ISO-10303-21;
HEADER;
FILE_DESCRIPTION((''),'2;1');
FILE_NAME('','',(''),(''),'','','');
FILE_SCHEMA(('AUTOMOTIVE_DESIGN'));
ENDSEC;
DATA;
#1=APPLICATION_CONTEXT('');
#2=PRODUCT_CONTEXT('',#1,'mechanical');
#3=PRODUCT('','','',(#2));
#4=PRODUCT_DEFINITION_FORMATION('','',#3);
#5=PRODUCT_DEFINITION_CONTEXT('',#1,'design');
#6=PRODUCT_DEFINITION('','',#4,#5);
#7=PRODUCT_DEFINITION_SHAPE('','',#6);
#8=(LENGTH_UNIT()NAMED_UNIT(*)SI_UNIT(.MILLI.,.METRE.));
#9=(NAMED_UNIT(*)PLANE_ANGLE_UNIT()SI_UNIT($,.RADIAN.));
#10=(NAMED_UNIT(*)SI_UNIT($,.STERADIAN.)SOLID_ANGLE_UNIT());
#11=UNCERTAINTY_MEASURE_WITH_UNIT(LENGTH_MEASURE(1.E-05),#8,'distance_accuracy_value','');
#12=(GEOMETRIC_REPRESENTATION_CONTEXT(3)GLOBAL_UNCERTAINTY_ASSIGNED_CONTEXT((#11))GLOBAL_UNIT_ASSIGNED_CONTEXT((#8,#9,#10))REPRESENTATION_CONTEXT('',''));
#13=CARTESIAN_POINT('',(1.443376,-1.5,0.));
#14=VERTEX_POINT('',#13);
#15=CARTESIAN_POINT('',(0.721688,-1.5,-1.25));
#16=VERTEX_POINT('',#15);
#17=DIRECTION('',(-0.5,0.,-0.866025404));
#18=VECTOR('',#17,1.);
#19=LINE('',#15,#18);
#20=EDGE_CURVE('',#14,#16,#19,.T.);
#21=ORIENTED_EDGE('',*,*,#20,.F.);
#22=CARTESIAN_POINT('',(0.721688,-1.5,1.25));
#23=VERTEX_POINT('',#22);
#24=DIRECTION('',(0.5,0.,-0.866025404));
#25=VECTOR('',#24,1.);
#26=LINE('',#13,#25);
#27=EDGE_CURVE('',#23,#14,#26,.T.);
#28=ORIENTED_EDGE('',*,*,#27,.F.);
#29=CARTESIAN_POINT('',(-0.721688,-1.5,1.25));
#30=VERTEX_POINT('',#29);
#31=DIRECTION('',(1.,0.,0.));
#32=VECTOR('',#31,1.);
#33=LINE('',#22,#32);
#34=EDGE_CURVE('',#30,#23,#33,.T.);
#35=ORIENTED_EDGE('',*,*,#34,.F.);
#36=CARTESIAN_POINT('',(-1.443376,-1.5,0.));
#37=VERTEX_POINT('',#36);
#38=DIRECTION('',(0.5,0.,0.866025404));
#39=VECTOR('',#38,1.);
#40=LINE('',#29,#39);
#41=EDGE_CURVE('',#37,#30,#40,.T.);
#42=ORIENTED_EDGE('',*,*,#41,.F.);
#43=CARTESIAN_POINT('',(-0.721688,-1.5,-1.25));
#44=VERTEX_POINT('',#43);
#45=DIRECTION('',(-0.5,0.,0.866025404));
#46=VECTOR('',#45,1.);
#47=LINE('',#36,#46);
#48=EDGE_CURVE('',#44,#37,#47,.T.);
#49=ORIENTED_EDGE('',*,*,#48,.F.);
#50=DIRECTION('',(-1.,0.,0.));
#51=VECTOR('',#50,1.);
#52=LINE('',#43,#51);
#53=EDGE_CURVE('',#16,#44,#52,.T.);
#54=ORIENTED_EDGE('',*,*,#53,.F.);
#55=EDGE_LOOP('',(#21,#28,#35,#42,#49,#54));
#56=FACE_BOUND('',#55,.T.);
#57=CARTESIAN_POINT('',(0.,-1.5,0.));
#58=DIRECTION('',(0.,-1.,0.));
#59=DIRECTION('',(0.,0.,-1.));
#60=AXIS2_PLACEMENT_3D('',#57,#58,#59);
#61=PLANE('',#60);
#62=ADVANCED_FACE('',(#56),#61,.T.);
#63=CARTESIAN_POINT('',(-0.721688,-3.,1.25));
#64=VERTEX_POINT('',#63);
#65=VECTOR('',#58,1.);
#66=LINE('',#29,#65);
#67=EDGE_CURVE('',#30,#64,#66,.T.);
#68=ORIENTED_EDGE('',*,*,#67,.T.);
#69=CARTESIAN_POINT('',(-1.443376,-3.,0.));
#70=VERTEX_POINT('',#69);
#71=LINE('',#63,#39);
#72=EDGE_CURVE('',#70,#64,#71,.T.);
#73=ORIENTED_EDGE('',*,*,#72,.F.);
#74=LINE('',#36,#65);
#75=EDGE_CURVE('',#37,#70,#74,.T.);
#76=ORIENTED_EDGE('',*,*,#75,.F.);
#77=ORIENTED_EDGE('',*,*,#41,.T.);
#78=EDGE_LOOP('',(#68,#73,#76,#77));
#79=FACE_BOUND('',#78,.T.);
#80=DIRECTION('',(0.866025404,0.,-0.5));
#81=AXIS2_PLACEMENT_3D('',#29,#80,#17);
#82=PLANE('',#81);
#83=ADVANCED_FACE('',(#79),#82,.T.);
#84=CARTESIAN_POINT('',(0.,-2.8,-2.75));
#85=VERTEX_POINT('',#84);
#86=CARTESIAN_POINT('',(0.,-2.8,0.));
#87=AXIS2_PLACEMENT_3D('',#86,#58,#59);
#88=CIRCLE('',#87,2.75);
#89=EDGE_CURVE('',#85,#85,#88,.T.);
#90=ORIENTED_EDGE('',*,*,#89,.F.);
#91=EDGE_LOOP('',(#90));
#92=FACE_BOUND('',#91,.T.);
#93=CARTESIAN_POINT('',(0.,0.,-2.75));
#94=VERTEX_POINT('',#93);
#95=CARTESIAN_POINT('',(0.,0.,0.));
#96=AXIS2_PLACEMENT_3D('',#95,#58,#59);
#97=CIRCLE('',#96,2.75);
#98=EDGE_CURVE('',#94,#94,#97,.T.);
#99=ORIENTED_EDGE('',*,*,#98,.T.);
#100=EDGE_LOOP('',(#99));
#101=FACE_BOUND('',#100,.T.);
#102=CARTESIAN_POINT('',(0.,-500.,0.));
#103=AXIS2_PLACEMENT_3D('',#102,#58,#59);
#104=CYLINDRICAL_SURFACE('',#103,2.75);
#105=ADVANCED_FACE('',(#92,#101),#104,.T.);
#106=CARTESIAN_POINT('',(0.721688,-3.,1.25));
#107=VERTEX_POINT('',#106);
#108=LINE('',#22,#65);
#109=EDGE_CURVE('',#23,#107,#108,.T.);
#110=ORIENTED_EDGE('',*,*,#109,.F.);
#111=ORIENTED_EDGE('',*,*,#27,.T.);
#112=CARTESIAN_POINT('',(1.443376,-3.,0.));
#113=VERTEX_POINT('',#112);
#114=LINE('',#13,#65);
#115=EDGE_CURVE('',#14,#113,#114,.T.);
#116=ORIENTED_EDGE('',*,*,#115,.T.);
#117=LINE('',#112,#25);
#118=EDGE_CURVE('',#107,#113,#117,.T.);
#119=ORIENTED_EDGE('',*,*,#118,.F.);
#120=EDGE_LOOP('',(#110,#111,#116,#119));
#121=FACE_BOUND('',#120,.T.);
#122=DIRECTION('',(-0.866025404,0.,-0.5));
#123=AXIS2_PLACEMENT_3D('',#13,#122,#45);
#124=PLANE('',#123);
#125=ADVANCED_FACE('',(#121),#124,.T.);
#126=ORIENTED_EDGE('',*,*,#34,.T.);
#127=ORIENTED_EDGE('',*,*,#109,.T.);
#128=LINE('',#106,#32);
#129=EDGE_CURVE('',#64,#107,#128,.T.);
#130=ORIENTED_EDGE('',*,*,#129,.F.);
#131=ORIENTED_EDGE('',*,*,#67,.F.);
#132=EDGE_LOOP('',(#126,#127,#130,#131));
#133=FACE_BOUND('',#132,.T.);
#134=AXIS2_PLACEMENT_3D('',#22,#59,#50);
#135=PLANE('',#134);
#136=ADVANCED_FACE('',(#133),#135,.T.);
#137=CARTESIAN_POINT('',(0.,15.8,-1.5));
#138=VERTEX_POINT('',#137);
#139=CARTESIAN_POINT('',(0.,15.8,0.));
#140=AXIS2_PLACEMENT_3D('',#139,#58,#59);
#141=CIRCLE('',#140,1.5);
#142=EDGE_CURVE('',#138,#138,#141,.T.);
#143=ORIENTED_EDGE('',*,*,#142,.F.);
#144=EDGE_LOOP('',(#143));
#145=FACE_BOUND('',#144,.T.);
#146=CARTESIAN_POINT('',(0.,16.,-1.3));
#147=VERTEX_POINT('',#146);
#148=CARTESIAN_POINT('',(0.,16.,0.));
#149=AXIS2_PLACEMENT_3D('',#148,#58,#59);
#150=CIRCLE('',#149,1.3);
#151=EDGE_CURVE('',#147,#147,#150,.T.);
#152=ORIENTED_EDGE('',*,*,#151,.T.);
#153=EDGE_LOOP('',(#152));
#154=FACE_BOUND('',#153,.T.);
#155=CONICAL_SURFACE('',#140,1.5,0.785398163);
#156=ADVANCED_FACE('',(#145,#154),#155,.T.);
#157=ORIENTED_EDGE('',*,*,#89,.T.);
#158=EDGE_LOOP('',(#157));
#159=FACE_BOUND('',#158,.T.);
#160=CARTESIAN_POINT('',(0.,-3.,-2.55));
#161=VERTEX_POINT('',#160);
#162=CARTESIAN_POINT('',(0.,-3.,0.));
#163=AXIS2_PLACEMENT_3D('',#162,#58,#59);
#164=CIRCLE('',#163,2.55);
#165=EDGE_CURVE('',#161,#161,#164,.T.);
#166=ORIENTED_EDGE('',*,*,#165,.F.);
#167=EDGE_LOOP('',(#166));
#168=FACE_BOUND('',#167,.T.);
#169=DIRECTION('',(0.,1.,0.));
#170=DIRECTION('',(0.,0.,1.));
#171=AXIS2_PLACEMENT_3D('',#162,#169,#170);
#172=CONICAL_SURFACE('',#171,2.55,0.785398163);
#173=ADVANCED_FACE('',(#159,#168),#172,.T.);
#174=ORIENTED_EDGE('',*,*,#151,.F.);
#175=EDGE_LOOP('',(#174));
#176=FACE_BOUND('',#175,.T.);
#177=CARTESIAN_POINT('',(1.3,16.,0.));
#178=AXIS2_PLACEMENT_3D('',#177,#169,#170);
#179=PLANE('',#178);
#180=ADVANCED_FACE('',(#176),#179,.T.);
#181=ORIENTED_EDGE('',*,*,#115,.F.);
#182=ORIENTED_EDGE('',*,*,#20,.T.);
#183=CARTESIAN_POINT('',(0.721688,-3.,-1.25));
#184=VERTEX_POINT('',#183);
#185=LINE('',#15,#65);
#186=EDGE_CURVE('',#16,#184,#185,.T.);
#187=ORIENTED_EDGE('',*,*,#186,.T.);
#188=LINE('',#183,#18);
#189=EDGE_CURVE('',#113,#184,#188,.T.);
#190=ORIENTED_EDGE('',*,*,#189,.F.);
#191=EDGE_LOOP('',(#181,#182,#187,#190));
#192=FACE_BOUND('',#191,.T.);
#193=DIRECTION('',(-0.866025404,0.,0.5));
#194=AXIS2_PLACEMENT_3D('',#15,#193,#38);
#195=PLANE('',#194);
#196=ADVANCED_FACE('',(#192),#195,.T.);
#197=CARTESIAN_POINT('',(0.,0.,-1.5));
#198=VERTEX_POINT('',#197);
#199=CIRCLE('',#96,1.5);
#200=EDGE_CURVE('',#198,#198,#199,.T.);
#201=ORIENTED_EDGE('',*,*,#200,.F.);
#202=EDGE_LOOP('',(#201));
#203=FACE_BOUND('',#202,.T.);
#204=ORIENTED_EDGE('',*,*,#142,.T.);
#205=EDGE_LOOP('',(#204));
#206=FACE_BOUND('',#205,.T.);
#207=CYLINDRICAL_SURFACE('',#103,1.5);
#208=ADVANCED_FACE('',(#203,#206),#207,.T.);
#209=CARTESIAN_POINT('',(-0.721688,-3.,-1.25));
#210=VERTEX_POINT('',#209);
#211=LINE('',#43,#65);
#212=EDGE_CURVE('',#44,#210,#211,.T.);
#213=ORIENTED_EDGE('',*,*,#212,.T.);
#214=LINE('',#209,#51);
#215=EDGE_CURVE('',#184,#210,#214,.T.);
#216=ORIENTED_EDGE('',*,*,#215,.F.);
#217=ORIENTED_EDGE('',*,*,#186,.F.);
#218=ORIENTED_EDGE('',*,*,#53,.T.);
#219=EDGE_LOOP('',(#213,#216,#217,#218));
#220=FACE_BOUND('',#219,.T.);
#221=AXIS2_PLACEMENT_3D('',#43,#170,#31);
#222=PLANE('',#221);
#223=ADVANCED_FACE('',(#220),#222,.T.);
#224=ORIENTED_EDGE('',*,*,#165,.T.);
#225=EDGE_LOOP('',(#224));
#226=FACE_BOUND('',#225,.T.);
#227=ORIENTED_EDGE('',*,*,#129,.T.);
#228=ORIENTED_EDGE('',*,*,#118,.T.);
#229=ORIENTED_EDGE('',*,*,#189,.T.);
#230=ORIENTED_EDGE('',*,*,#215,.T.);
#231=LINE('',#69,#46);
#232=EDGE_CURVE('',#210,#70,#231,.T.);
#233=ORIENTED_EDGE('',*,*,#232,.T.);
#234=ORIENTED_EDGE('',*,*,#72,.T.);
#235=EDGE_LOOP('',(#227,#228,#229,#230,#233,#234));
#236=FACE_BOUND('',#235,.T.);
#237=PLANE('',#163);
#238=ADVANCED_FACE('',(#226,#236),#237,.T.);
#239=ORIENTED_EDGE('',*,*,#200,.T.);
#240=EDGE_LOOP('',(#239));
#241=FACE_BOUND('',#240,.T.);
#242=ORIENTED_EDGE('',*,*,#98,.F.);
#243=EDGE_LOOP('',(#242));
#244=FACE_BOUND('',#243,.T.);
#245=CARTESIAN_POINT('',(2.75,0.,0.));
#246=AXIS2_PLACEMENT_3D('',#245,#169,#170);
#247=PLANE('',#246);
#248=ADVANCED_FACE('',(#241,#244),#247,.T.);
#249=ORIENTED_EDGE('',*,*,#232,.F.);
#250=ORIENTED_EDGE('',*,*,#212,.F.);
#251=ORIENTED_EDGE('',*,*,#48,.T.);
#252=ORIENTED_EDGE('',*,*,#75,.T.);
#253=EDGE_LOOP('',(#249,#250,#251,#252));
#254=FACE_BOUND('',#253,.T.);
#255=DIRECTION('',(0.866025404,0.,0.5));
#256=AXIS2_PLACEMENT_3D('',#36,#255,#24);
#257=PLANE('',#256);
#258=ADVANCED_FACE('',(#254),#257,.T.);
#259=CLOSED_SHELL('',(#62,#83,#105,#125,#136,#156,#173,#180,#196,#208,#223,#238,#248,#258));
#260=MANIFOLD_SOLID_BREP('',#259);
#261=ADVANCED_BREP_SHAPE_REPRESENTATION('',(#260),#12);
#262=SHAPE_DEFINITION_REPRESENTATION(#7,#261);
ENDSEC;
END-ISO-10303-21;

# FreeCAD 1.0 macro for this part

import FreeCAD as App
import Part
import Sketcher
Q = App.Units.Quantity

doc = App.newDocument("Part")
body = doc.addObject("PartDesign::Body", "Body")

# Sketch on XY plane
sketch1 = doc.addObject("Sketcher::SketchObject", "Sketch")
body.addObject(sketch1)
sketch1.AttachmentSupport = (doc.XY_Plane, [""])
sketch1.MapMode = "FlatFace"
sketch1.addGeometry([
    Part.LineSegment(App.Vector(0, -3, 0), App.Vector(2.55, -3, 0)),  # 0
    Part.LineSegment(App.Vector(2.55, -3, 0), App.Vector(2.75, -2.8, 0)),  # 1
    Part.LineSegment(App.Vector(2.75, -2.8, 0), App.Vector(2.75, 0, 0)),  # 2
    Part.LineSegment(App.Vector(2.75, 0, 0), App.Vector(1.5, 0, 0)),  # 3
    Part.LineSegment(App.Vector(1.5, 0, 0), App.Vector(1.5, 15.8, 0)),  # 4
    Part.LineSegment(App.Vector(1.5, 15.8, 0), App.Vector(1.3, 16, 0)),  # 5
    Part.LineSegment(App.Vector(1.3, 16, 0), App.Vector(0, 16, 0)),  # 6
    Part.LineSegment(App.Vector(0, 16, 0), App.Vector(0, -3, 0)),  # 7
], False)
sketch1.addConstraint([
    Sketcher.Constraint("Coincident", 0, 2, 1, 1),
    Sketcher.Constraint("Coincident", 1, 2, 2, 1),
    Sketcher.Constraint("Coincident", 2, 2, 3, 1),
    Sketcher.Constraint("Coincident", 3, 2, 4, 1),
    Sketcher.Constraint("Coincident", 4, 2, 5, 1),
    Sketcher.Constraint("Coincident", 5, 2, 6, 1),
    Sketcher.Constraint("Coincident", 6, 2, 7, 1),
    Sketcher.Constraint("Coincident", 7, 2, 0, 1),
    Sketcher.Constraint("Horizontal", 0),
    Sketcher.Constraint("Vertical", 2),
    Sketcher.Constraint("Horizontal", 3),
    Sketcher.Constraint("Vertical", 4),
    Sketcher.Constraint("Horizontal", 6),
    Sketcher.Constraint("Vertical", 7),
    Sketcher.Constraint("PointOnObject", 2, 2, -1),
    Sketcher.Constraint("PointOnObject", 6, 2, -2),
    Sketcher.Constraint("Perpendicular", 1, 5),
    Sketcher.Constraint("Equal", 1, 5),
    Sketcher.Constraint("DistanceY", 7, 2, 7, 1, Q("19 mm")),
    Sketcher.Constraint("Angle", 1, Q("45 deg")),
    Sketcher.Constraint("DistanceX", 6, 2, 6, 1, Q("1.3 mm")),
    Sketcher.Constraint("DistanceY", 2, 1, 2, 2, Q("2.8 mm")),
    Sketcher.Constraint("DistanceY", 4, 1, 4, 2, Q("15.8 mm")),
    Sketcher.Constraint("DistanceX", 0, 1, 0, 2, Q("2.55 mm")),
])
revolution = doc.addObject("PartDesign::Revolution", "Revolution")
body.addObject(revolution)
revolution.Profile = sketch1
revolution.ReferenceAxis = (sketch1, ["V_Axis"])
revolution.Angle = 360

# Sketch on XZ plane
sketch2 = doc.addObject("Sketcher::SketchObject", "Sketch001")
body.addObject(sketch2)
sketch2.AttachmentSupport = (doc.XZ_Plane, [""])
sketch2.MapMode = "FlatFace"
sketch2.AttachmentOffset = App.Placement(App.Vector(0, 0, 3), App.Rotation())
sketch2.addGeometry([
    Part.LineSegment(App.Vector(0.721688, 1.25, 0), App.Vector(1.443376, 0, 0)),  # 0
    Part.LineSegment(App.Vector(1.443376, 0, 0), App.Vector(0.721688, -1.25, 0)),  # 1
    Part.LineSegment(App.Vector(0.721688, -1.25, 0), App.Vector(-0.721688, -1.25, 0)),  # 2
    Part.LineSegment(App.Vector(-0.721688, -1.25, 0), App.Vector(-1.443376, 0, 0)),  # 3
    Part.LineSegment(App.Vector(-1.443376, 0, 0), App.Vector(-0.721688, 1.25, 0)),  # 4
    Part.LineSegment(App.Vector(-0.721688, 1.25, 0), App.Vector(0.721688, 1.25, 0)),  # 5
], False)
sketch2.addConstraint([
    Sketcher.Constraint("Coincident", 0, 2, 1, 1),
    Sketcher.Constraint("Coincident", 1, 2, 2, 1),
    Sketcher.Constraint("Coincident", 2, 2, 3, 1),
    Sketcher.Constraint("Coincident", 3, 2, 4, 1),
    Sketcher.Constraint("Coincident", 4, 2, 5, 1),
    Sketcher.Constraint("Coincident", 5, 2, 0, 1),
    Sketcher.Constraint("Horizontal", 2),
    Sketcher.Constraint("Horizontal", 5),
    Sketcher.Constraint("Symmetric", 0, 2, 3, 2, -1, 1),
    Sketcher.Constraint("Symmetric", 1, 2, 4, 2, -1, 1),
    Sketcher.Constraint("PointOnObject", 0, 2, -1),
    Sketcher.Constraint("Parallel", 0, 3),
    Sketcher.Constraint("Vertical", 2, 2, 4, 2),
    Sketcher.Constraint("Angle", 0, Q("-60 deg")),
    Sketcher.Constraint("DistanceY", 2, 2, 4, 2, Q("2.5 mm")),
    Sketcher.Constraint("DistanceX", 2, 2, 2, 1, Q("1.443376 mm")),
])
pocket1 = doc.addObject("PartDesign::Pocket", "Pocket")
body.addObject(pocket1)
pocket1.Profile = sketch2
pocket1.Length = 1.5

doc.recompute()
